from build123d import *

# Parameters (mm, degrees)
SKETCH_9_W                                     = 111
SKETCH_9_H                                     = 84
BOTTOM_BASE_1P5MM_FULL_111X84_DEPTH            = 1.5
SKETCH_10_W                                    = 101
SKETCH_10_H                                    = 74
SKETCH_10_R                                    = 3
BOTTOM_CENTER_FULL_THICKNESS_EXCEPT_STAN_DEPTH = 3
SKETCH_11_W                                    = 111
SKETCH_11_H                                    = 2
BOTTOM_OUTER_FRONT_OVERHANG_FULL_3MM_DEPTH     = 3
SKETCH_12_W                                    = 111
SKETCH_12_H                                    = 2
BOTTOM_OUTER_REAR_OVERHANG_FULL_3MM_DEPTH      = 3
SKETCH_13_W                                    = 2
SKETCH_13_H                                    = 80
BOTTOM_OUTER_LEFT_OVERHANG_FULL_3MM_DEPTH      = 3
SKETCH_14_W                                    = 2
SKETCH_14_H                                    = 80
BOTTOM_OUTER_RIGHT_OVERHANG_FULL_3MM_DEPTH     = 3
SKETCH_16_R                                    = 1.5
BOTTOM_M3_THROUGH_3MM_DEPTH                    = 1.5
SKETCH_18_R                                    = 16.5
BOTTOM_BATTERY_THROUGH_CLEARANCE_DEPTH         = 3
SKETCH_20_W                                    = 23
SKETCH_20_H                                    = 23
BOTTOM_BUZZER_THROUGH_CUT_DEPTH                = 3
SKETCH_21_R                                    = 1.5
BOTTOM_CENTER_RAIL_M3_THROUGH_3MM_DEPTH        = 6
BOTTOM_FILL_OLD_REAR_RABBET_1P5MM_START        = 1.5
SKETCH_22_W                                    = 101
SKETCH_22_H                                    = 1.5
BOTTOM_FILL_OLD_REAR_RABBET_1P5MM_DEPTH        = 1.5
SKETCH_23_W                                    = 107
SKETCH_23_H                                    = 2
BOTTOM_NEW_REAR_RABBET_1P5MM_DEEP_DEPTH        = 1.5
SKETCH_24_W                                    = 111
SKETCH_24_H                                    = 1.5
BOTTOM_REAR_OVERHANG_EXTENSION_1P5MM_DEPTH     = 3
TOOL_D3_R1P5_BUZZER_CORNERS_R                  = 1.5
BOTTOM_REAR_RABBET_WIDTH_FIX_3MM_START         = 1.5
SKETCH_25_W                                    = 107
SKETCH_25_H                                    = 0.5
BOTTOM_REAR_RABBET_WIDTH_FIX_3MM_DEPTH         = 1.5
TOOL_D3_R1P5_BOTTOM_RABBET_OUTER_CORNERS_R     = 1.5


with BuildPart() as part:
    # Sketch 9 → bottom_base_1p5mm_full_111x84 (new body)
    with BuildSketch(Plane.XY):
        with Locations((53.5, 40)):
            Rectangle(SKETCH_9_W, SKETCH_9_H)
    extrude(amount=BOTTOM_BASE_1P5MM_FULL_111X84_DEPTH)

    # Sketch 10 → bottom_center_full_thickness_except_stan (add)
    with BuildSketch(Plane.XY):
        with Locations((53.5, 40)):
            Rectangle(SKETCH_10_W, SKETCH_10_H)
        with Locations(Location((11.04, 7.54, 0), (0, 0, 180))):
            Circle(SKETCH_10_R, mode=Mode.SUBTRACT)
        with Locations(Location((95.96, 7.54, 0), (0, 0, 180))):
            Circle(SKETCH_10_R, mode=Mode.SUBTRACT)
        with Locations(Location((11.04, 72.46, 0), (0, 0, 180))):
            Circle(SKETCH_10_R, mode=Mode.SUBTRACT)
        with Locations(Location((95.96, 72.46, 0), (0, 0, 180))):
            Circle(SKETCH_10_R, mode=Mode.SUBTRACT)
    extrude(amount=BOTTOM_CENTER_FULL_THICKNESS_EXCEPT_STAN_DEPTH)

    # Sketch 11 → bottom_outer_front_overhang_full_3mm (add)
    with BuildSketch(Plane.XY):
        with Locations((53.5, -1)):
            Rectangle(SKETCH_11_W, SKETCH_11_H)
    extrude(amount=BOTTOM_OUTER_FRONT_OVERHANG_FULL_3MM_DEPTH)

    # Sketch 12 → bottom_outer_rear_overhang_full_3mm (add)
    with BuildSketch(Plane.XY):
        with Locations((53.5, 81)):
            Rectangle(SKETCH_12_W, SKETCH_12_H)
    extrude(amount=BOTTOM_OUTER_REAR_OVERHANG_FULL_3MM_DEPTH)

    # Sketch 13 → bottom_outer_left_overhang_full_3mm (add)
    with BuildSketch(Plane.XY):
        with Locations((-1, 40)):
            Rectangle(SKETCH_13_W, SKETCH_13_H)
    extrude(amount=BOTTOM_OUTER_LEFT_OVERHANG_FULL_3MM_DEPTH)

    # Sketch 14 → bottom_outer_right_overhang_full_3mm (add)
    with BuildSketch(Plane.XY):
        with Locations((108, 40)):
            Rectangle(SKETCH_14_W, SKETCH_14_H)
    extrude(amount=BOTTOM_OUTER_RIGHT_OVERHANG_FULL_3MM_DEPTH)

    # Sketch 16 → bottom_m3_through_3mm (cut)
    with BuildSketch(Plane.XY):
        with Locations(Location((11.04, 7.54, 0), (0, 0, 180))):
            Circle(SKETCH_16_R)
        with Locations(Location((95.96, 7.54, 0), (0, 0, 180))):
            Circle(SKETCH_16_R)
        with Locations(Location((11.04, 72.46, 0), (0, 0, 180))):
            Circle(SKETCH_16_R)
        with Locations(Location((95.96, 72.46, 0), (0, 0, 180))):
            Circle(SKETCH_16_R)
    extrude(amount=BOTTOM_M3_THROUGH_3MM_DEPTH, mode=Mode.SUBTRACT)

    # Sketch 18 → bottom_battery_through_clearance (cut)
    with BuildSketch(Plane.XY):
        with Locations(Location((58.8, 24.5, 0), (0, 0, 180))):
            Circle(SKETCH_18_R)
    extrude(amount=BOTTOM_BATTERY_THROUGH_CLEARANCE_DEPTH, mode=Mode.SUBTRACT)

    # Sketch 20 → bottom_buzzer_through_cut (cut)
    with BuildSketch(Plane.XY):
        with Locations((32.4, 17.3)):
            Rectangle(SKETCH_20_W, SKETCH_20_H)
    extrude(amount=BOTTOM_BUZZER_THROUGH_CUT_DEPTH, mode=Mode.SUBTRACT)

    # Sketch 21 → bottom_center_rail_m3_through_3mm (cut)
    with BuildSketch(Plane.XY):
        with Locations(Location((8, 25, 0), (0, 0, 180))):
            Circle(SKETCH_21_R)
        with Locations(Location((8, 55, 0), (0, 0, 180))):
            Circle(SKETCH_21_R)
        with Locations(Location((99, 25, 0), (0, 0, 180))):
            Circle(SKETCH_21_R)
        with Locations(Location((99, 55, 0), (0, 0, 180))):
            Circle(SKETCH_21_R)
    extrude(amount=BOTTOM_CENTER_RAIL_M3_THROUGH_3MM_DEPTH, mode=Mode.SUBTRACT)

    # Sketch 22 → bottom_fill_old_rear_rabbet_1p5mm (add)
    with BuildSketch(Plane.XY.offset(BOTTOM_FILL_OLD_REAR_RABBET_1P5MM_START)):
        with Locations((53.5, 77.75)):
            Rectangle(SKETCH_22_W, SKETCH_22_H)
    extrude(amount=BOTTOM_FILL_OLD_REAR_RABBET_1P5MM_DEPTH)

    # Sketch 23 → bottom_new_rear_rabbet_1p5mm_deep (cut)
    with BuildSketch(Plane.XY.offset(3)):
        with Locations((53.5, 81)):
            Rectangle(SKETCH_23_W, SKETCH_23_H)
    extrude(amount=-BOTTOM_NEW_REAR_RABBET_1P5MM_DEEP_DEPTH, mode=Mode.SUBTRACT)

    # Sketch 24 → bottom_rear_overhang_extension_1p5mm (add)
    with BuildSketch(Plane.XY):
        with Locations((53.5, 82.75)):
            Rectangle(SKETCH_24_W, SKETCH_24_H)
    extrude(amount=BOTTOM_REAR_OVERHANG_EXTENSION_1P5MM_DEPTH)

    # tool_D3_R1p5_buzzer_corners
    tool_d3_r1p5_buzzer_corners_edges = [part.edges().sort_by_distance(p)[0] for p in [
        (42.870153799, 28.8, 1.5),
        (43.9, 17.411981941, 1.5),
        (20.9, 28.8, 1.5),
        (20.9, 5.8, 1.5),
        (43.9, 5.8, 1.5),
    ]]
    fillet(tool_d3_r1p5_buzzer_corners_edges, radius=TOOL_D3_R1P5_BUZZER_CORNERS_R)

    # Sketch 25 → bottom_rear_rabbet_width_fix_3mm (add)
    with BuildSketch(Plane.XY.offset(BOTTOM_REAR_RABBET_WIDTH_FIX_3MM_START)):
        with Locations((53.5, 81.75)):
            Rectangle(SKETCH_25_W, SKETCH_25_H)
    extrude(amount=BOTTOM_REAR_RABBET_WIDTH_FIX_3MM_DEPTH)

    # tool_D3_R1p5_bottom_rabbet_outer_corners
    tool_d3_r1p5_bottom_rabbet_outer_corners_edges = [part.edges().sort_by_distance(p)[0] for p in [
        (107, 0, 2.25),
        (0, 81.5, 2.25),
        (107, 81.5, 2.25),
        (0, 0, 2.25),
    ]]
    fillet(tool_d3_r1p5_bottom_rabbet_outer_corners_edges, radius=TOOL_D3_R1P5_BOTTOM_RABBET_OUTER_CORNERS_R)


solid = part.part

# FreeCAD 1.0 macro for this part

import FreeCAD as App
import Part
import Sketcher
from FreeCAD import Vector
Q = App.Units.Quantity


def edges_at(feature, points):
    """Names of the edges that pass closest to the given points."""
    edges = feature.Shape.Edges
    near = lambda p: min(range(len(edges)), key=lambda i: edges[i].distToShape(Part.Vertex(*p))[0])
    return sorted({f"Edge{near(p) + 1}" for p in points})


def add_polygon(sketch, points):
    """Adds a closed chain of lines whose ends are joined by coincident constraints."""
    first, n = sketch.GeometryCount, len(points)
    for a, b in zip(points, points[1:] + points[:1]):
        sketch.addGeometry(Part.LineSegment(App.Vector(*a, 0), App.Vector(*b, 0)), False)
    for i in range(n):
        sketch.addConstraint(Sketcher.Constraint("Coincident", first + i, 2, first + (i + 1) % n, 1))

doc = App.newDocument("Part")
params = doc.addObject("Spreadsheet::Sheet", "Params")
for row, (alias, value) in enumerate([
    ("sketch1_width", "111 mm"),
    ("sketch1_height", "84 mm"),
    ("pad1_length", "1.5 mm"),
    ("sketch2_diameter", "6 mm"),
    ("sketch2_width", "101 mm"),
    ("sketch2_height", "74 mm"),
    ("pad2_length", "3 mm"),
    ("sketch3_width", "111 mm"),
    ("sketch3_height", "2 mm"),
    ("pad3_length", "3 mm"),
    ("sketch4_width", "111 mm"),
    ("sketch4_height", "2 mm"),
    ("pad4_length", "3 mm"),
    ("sketch5_width", "2 mm"),
    ("sketch5_height", "80 mm"),
    ("pad5_length", "3 mm"),
    ("sketch6_width", "2 mm"),
    ("sketch6_height", "80 mm"),
    ("pad6_length", "3 mm"),
    ("sketch7_diameter", "3 mm"),
    ("pocket1_length", "1.5 mm"),
    ("sketch8_diameter", "33 mm"),
    ("pocket2_length", "3 mm"),
    ("sketch9_width", "23 mm"),
    ("pocket3_length", "3 mm"),
    ("sketch10_diameter", "3 mm"),
    ("pocket4_length", "6 mm"),
    ("sketch11_width", "101 mm"),
    ("sketch11_height", "1.5 mm"),
    ("pad7_length", "1.5 mm"),
    ("sketch12_width", "107 mm"),
    ("sketch12_height", "2 mm"),
    ("pocket5_length", "1.5 mm"),
    ("sketch13_width", "111 mm"),
    ("sketch13_height", "1.5 mm"),
    ("pad8_length", "3 mm"),
    ("fillet_radius", "1.5 mm"),
    ("sketch14_width", "107 mm"),
    ("sketch14_height", "0.5 mm"),
    ("pad9_length", "1.5 mm"),
    ("fillet2_radius", "1.5 mm"),
], start=1):
    params.set(f"A{row}", alias)
    params.set(f"B{row}", "=" + value)
    params.setAlias(f"B{row}", alias)

body = doc.addObject("PartDesign::Body", "Body")

sketch1 = body.newObject("Sketcher::SketchObject", "Sketch")
sketch1.AttachmentSupport = (doc.getObject("XY_Plane"), [""])
sketch1.MapMode = "FlatFace"
add_polygon(sketch1, [(-2, 82), (-2, -2), (109, -2), (109, 82)])
sketch1.addConstraint(Sketcher.Constraint("Vertical", 0))
sketch1.addConstraint(Sketcher.Constraint("Horizontal", 1))
sketch1.addConstraint(Sketcher.Constraint("Vertical", 2))
sketch1.addConstraint(Sketcher.Constraint("Horizontal", 3))
sketch1.addConstraint(Sketcher.Constraint("DistanceX", 1, 1, 1, 2, Q("111 mm")))
sketch1.addConstraint(Sketcher.Constraint("DistanceY", 0, 2, 0, 1, Q("84 mm")))
sketch1.addConstraint(Sketcher.Constraint("DistanceX", 0, 2, -1, 1, Q("2 mm")))
sketch1.addConstraint(Sketcher.Constraint("DistanceY", 0, 2, -1, 1, Q("2 mm")))
sketch1.setExpression("Constraints[8]", "Params.sketch1_width")
sketch1.setExpression("Constraints[9]", "Params.sketch1_height")
pad1 = body.newObject("PartDesign::Pad", "Pad")
pad1.Profile = sketch1
pad1.setExpression("Length", "Params.pad1_length")

sketch2 = body.newObject("Sketcher::SketchObject", "Sketch001")
sketch2.AttachmentSupport = (doc.getObject("XY_Plane"), [""])
sketch2.MapMode = "FlatFace"
add_polygon(sketch2, [(3, 77), (3, 3), (104, 3), (104, 77)])
sketch2.addGeometry(Part.Circle(Vector(11, 7.5, 0), Vector(0, 0, 1), 3), False)
sketch2.addGeometry(Part.Circle(Vector(96, 7.5, 0), Vector(0, 0, 1), 3), False)
sketch2.addGeometry(Part.Circle(Vector(11, 72.5, 0), Vector(0, 0, 1), 3), False)
sketch2.addGeometry(Part.Circle(Vector(96, 72.5, 0), Vector(0, 0, 1), 3), False)
sketch2.addConstraint(Sketcher.Constraint("Vertical", 0))
sketch2.addConstraint(Sketcher.Constraint("Horizontal", 1))
sketch2.addConstraint(Sketcher.Constraint("Vertical", 2))
sketch2.addConstraint(Sketcher.Constraint("Horizontal", 3))
sketch2.addConstraint(Sketcher.Constraint("Equal", 4, 5))
sketch2.addConstraint(Sketcher.Constraint("Equal", 5, 6))
sketch2.addConstraint(Sketcher.Constraint("Equal", 6, 7))
sketch2.addConstraint(Sketcher.Constraint("Horizontal", 4, 3, 5, 3))
sketch2.addConstraint(Sketcher.Constraint("Horizontal", 6, 3, 7, 3))
sketch2.addConstraint(Sketcher.Constraint("Vertical", 4, 3, 6, 3))
sketch2.addConstraint(Sketcher.Constraint("Vertical", 5, 3, 7, 3))
sketch2.addConstraint(Sketcher.Constraint("Diameter", 4, Q("6 mm")))
sketch2.addConstraint(Sketcher.Constraint("DistanceX", 1, 1, 1, 2, Q("101 mm")))
sketch2.addConstraint(Sketcher.Constraint("DistanceY", 0, 2, 0, 1, Q("74 mm")))
sketch2.addConstraint(Sketcher.Constraint("DistanceX", -1, 1, 0, 2, Q("3 mm")))
sketch2.addConstraint(Sketcher.Constraint("DistanceY", -1, 1, 0, 2, Q("3 mm")))
sketch2.addConstraint(Sketcher.Constraint("DistanceX", -1, 1, 4, 3, Q("11.04 mm")))
sketch2.addConstraint(Sketcher.Constraint("DistanceY", -1, 1, 4, 3, Q("7.54 mm")))
sketch2.addConstraint(Sketcher.Constraint("DistanceX", -1, 1, 5, 3, Q("95.96 mm")))
sketch2.addConstraint(Sketcher.Constraint("DistanceY", -1, 1, 6, 3, Q("72.46 mm")))
sketch2.setExpression("Constraints[15]", "Params.sketch2_diameter")
sketch2.setExpression("Constraints[16]", "Params.sketch2_width")
sketch2.setExpression("Constraints[17]", "Params.sketch2_height")
pad2 = body.newObject("PartDesign::Pad", "Pad001")
pad2.Profile = sketch2
pad2.setExpression("Length", "Params.pad2_length")

sketch3 = body.newObject("Sketcher::SketchObject", "Sketch002")
sketch3.AttachmentSupport = (doc.getObject("XY_Plane"), [""])
sketch3.MapMode = "FlatFace"
add_polygon(sketch3, [(-2, 0), (-2, -2), (109, -2), (109, 0)])
sketch3.addConstraint(Sketcher.Constraint("Vertical", 0))
sketch3.addConstraint(Sketcher.Constraint("Horizontal", 1))
sketch3.addConstraint(Sketcher.Constraint("Vertical", 2))
sketch3.addConstraint(Sketcher.Constraint("Horizontal", 3))
sketch3.addConstraint(Sketcher.Constraint("PointOnObject", 2, 2, -1))
sketch3.addConstraint(Sketcher.Constraint("DistanceX", 1, 1, 1, 2, Q("111 mm")))
sketch3.addConstraint(Sketcher.Constraint("DistanceY", 0, 2, 0, 1, Q("2 mm")))
sketch3.addConstraint(Sketcher.Constraint("DistanceX", 0, 2, -1, 1, Q("2 mm")))
sketch3.setExpression("Constraints[9]", "Params.sketch3_width")
sketch3.setExpression("Constraints[10]", "Params.sketch3_height")
pad3 = body.newObject("PartDesign::Pad", "Pad002")
pad3.Profile = sketch3
pad3.setExpression("Length", "Params.pad3_length")

sketch4 = body.newObject("Sketcher::SketchObject", "Sketch003")
sketch4.AttachmentSupport = (doc.getObject("XY_Plane"), [""])
sketch4.MapMode = "FlatFace"
add_polygon(sketch4, [(-2, 82), (-2, 80), (109, 80), (109, 82)])
sketch4.addConstraint(Sketcher.Constraint("Vertical", 0))
sketch4.addConstraint(Sketcher.Constraint("Horizontal", 1))
sketch4.addConstraint(Sketcher.Constraint("Vertical", 2))
sketch4.addConstraint(Sketcher.Constraint("Horizontal", 3))
sketch4.addConstraint(Sketcher.Constraint("DistanceX", 1, 1, 1, 2, Q("111 mm")))
sketch4.addConstraint(Sketcher.Constraint("DistanceY", 0, 2, 0, 1, Q("2 mm")))
sketch4.addConstraint(Sketcher.Constraint("DistanceX", 0, 2, -1, 1, Q("2 mm")))
sketch4.addConstraint(Sketcher.Constraint("DistanceY", -1, 1, 0, 2, Q("80 mm")))
sketch4.setExpression("Constraints[8]", "Params.sketch4_width")
sketch4.setExpression("Constraints[9]", "Params.sketch4_height")
pad4 = body.newObject("PartDesign::Pad", "Pad003")
pad4.Profile = sketch4
pad4.setExpression("Length", "Params.pad4_length")

sketch5 = body.newObject("Sketcher::SketchObject", "Sketch004")
sketch5.AttachmentSupport = (doc.getObject("XY_Plane"), [""])
sketch5.MapMode = "FlatFace"
add_polygon(sketch5, [(-2, 80), (-2, 0), (0, 0), (0, 80)])
sketch5.addConstraint(Sketcher.Constraint("Vertical", 0))
sketch5.addConstraint(Sketcher.Constraint("Horizontal", 1))
sketch5.addConstraint(Sketcher.Constraint("Vertical", 2))
sketch5.addConstraint(Sketcher.Constraint("Horizontal", 3))
sketch5.addConstraint(Sketcher.Constraint("Coincident", 1, 2, -1, 1))
sketch5.addConstraint(Sketcher.Constraint("DistanceX", 1, 1, 1, 2, Q("2 mm")))
sketch5.addConstraint(Sketcher.Constraint("DistanceY", 0, 2, 0, 1, Q("80 mm")))
sketch5.setExpression("Constraints[9]", "Params.sketch5_width")
sketch5.setExpression("Constraints[10]", "Params.sketch5_height")
pad5 = body.newObject("PartDesign::Pad", "Pad004")
pad5.Profile = sketch5
pad5.setExpression("Length", "Params.pad5_length")

sketch6 = body.newObject("Sketcher::SketchObject", "Sketch005")
sketch6.AttachmentSupport = (doc.getObject("XY_Plane"), [""])
sketch6.MapMode = "FlatFace"
add_polygon(sketch6, [(107, 80), (107, 0), (109, 0), (109, 80)])
sketch6.addConstraint(Sketcher.Constraint("Vertical", 0))
sketch6.addConstraint(Sketcher.Constraint("Horizontal", 1))
sketch6.addConstraint(Sketcher.Constraint("Vertical", 2))
sketch6.addConstraint(Sketcher.Constraint("Horizontal", 3))
sketch6.addConstraint(Sketcher.Constraint("PointOnObject", 0, 2, -1))
sketch6.addConstraint(Sketcher.Constraint("DistanceX", 1, 1, 1, 2, Q("2 mm")))
sketch6.addConstraint(Sketcher.Constraint("DistanceY", 0, 2, 0, 1, Q("80 mm")))
sketch6.addConstraint(Sketcher.Constraint("DistanceX", -1, 1, 0, 2, Q("107 mm")))
sketch6.setExpression("Constraints[9]", "Params.sketch6_width")
sketch6.setExpression("Constraints[10]", "Params.sketch6_height")
pad6 = body.newObject("PartDesign::Pad", "Pad005")
pad6.Profile = sketch6
pad6.setExpression("Length", "Params.pad6_length")

sketch7 = body.newObject("Sketcher::SketchObject", "Sketch006")
sketch7.AttachmentSupport = (doc.getObject("XY_Plane"), [""])
sketch7.MapMode = "FlatFace"
sketch7.addGeometry(Part.Circle(Vector(11, 7.5, 0), Vector(0, 0, 1), 1.5), False)
sketch7.addGeometry(Part.Circle(Vector(96, 7.5, 0), Vector(0, 0, 1), 1.5), False)
sketch7.addGeometry(Part.Circle(Vector(11, 72.5, 0), Vector(0, 0, 1), 1.5), False)
sketch7.addGeometry(Part.Circle(Vector(96, 72.5, 0), Vector(0, 0, 1), 1.5), False)
sketch7.addConstraint(Sketcher.Constraint("Equal", 0, 1))
sketch7.addConstraint(Sketcher.Constraint("Equal", 1, 2))
sketch7.addConstraint(Sketcher.Constraint("Equal", 2, 3))
sketch7.addConstraint(Sketcher.Constraint("Horizontal", 0, 3, 1, 3))
sketch7.addConstraint(Sketcher.Constraint("Horizontal", 2, 3, 3, 3))
sketch7.addConstraint(Sketcher.Constraint("Vertical", 0, 3, 2, 3))
sketch7.addConstraint(Sketcher.Constraint("Vertical", 1, 3, 3, 3))
sketch7.addConstraint(Sketcher.Constraint("Diameter", 0, Q("3 mm")))
sketch7.addConstraint(Sketcher.Constraint("DistanceX", -1, 1, 0, 3, Q("11.04 mm")))
sketch7.addConstraint(Sketcher.Constraint("DistanceY", -1, 1, 0, 3, Q("7.54 mm")))
sketch7.addConstraint(Sketcher.Constraint("DistanceX", -1, 1, 1, 3, Q("95.96 mm")))
sketch7.addConstraint(Sketcher.Constraint("DistanceY", -1, 1, 2, 3, Q("72.46 mm")))
sketch7.setExpression("Constraints[7]", "Params.sketch7_diameter")
pocket1 = body.newObject("PartDesign::Pocket", "Pocket")
pocket1.Profile = sketch7
pocket1.setExpression("Length", "Params.pocket1_length")
pocket1.Reversed = True

sketch8 = body.newObject("Sketcher::SketchObject", "Sketch007")
sketch8.AttachmentSupport = (doc.getObject("XY_Plane"), [""])
sketch8.MapMode = "FlatFace"
sketch8.addGeometry(Part.Circle(Vector(59, 24, 0), Vector(0, 0, 1), 16), False)
sketch8.addConstraint(Sketcher.Constraint("Diameter", 0, Q("33 mm")))
sketch8.addConstraint(Sketcher.Constraint("DistanceX", -1, 1, 0, 3, Q("58.8 mm")))
sketch8.addConstraint(Sketcher.Constraint("DistanceY", -1, 1, 0, 3, Q("24.5 mm")))
sketch8.setExpression("Constraints[0]", "Params.sketch8_diameter")
pocket2 = body.newObject("PartDesign::Pocket", "Pocket001")
pocket2.Profile = sketch8
pocket2.setExpression("Length", "Params.pocket2_length")
pocket2.Reversed = True

sketch9 = body.newObject("Sketcher::SketchObject", "Sketch008")
sketch9.AttachmentSupport = (doc.getObject("XY_Plane"), [""])
sketch9.MapMode = "FlatFace"
add_polygon(sketch9, [(21, 29), (21, 6), (44, 6), (44, 29)])
sketch9.addConstraint(Sketcher.Constraint("Vertical", 0))
sketch9.addConstraint(Sketcher.Constraint("Horizontal", 1))
sketch9.addConstraint(Sketcher.Constraint("Vertical", 2))
sketch9.addConstraint(Sketcher.Constraint("Horizontal", 3))
sketch9.addConstraint(Sketcher.Constraint("Equal", 3, 0))
sketch9.addConstraint(Sketcher.Constraint("DistanceX", 1, 1, 1, 2, Q("23 mm")))
sketch9.addConstraint(Sketcher.Constraint("DistanceX", -1, 1, 0, 2, Q("20.9 mm")))
sketch9.addConstraint(Sketcher.Constraint("DistanceY", -1, 1, 0, 2, Q("5.8 mm")))
sketch9.setExpression("Constraints[9]", "Params.sketch9_width")
pocket3 = body.newObject("PartDesign::Pocket", "Pocket002")
pocket3.Profile = sketch9
pocket3.setExpression("Length", "Params.pocket3_length")
pocket3.Reversed = True

sketch10 = body.newObject("Sketcher::SketchObject", "Sketch009")
sketch10.AttachmentSupport = (doc.getObject("XY_Plane"), [""])
sketch10.MapMode = "FlatFace"
sketch10.addGeometry(Part.Circle(Vector(8, 25, 0), Vector(0, 0, 1), 1.5), False)
sketch10.addGeometry(Part.Circle(Vector(8, 55, 0), Vector(0, 0, 1), 1.5), False)
sketch10.addGeometry(Part.Circle(Vector(99, 25, 0), Vector(0, 0, 1), 1.5), False)
sketch10.addGeometry(Part.Circle(Vector(99, 55, 0), Vector(0, 0, 1), 1.5), False)
sketch10.addConstraint(Sketcher.Constraint("Equal", 0, 1))
sketch10.addConstraint(Sketcher.Constraint("Equal", 1, 2))
sketch10.addConstraint(Sketcher.Constraint("Equal", 2, 3))
sketch10.addConstraint(Sketcher.Constraint("Horizontal", 0, 3, 2, 3))
sketch10.addConstraint(Sketcher.Constraint("Horizontal", 1, 3, 3, 3))
sketch10.addConstraint(Sketcher.Constraint("Vertical", 0, 3, 1, 3))
sketch10.addConstraint(Sketcher.Constraint("Vertical", 2, 3, 3, 3))
sketch10.addConstraint(Sketcher.Constraint("Diameter", 0, Q("3 mm")))
sketch10.addConstraint(Sketcher.Constraint("DistanceX", -1, 1, 0, 3, Q("8 mm")))
sketch10.addConstraint(Sketcher.Constraint("DistanceY", -1, 1, 0, 3, Q("25 mm")))
sketch10.addConstraint(Sketcher.Constraint("DistanceY", -1, 1, 1, 3, Q("55 mm")))
sketch10.addConstraint(Sketcher.Constraint("DistanceX", -1, 1, 2, 3, Q("99 mm")))
sketch10.setExpression("Constraints[7]", "Params.sketch10_diameter")
pocket4 = body.newObject("PartDesign::Pocket", "Pocket003")
pocket4.Profile = sketch10
pocket4.setExpression("Length", "Params.pocket4_length")
pocket4.Reversed = True

sketch11 = body.newObject("Sketcher::SketchObject", "Sketch010")
sketch11.AttachmentSupport = (doc.getObject("XY_Plane"), [""])
sketch11.MapMode = "FlatFace"
sketch11.AttachmentOffset = App.Placement(Vector(0, 0, 1.5), App.Rotation())
add_polygon(sketch11, [(3, 78.5), (3, 77), (104, 77), (104, 78.5)])
sketch11.addConstraint(Sketcher.Constraint("Vertical", 0))
sketch11.addConstraint(Sketcher.Constraint("Horizontal", 1))
sketch11.addConstraint(Sketcher.Constraint("Vertical", 2))
sketch11.addConstraint(Sketcher.Constraint("Horizontal", 3))
sketch11.addConstraint(Sketcher.Constraint("DistanceX", 1, 1, 1, 2, Q("101 mm")))
sketch11.addConstraint(Sketcher.Constraint("DistanceY", 0, 2, 0, 1, Q("1.5 mm")))
sketch11.addConstraint(Sketcher.Constraint("DistanceX", -1, 1, 0, 2, Q("3 mm")))
sketch11.addConstraint(Sketcher.Constraint("DistanceY", -1, 1, 0, 2, Q("77 mm")))
sketch11.setExpression("Constraints[8]", "Params.sketch11_width")
sketch11.setExpression("Constraints[9]", "Params.sketch11_height")
pad7 = body.newObject("PartDesign::Pad", "Pad006")
pad7.Profile = sketch11
pad7.setExpression("Length", "Params.pad7_length")

sketch12 = body.newObject("Sketcher::SketchObject", "Sketch011")
sketch12.AttachmentSupport = (doc.getObject("XY_Plane"), [""])
sketch12.MapMode = "FlatFace"
sketch12.AttachmentOffset = App.Placement(Vector(0, 0, 3), App.Rotation())
add_polygon(sketch12, [(0, 82), (0, 80), (107, 80), (107, 82)])
sketch12.addConstraint(Sketcher.Constraint("Vertical", 0))
sketch12.addConstraint(Sketcher.Constraint("Horizontal", 1))
sketch12.addConstraint(Sketcher.Constraint("Vertical", 2))
sketch12.addConstraint(Sketcher.Constraint("Horizontal", 3))
sketch12.addConstraint(Sketcher.Constraint("PointOnObject", 0, 2, -2))
sketch12.addConstraint(Sketcher.Constraint("DistanceX", 1, 1, 1, 2, Q("107 mm")))
sketch12.addConstraint(Sketcher.Constraint("DistanceY", 0, 2, 0, 1, Q("2 mm")))
sketch12.addConstraint(Sketcher.Constraint("DistanceY", -1, 1, 0, 2, Q("80 mm")))
sketch12.setExpression("Constraints[9]", "Params.sketch12_width")
sketch12.setExpression("Constraints[10]", "Params.sketch12_height")
pocket5 = body.newObject("PartDesign::Pocket", "Pocket004")
pocket5.Profile = sketch12
pocket5.setExpression("Length", "Params.pocket5_length")

sketch13 = body.newObject("Sketcher::SketchObject", "Sketch012")
sketch13.AttachmentSupport = (doc.getObject("XY_Plane"), [""])
sketch13.MapMode = "FlatFace"
add_polygon(sketch13, [(-2, 83.5), (-2, 82), (109, 82), (109, 83.5)])
sketch13.addConstraint(Sketcher.Constraint("Vertical", 0))
sketch13.addConstraint(Sketcher.Constraint("Horizontal", 1))
sketch13.addConstraint(Sketcher.Constraint("Vertical", 2))
sketch13.addConstraint(Sketcher.Constraint("Horizontal", 3))
sketch13.addConstraint(Sketcher.Constraint("DistanceX", 1, 1, 1, 2, Q("111 mm")))
sketch13.addConstraint(Sketcher.Constraint("DistanceY", 0, 2, 0, 1, Q("1.5 mm")))
sketch13.addConstraint(Sketcher.Constraint("DistanceX", 0, 2, -1, 1, Q("2 mm")))
sketch13.addConstraint(Sketcher.Constraint("DistanceY", -1, 1, 0, 2, Q("82 mm")))
sketch13.setExpression("Constraints[8]", "Params.sketch13_width")
sketch13.setExpression("Constraints[9]", "Params.sketch13_height")
pad8 = body.newObject("PartDesign::Pad", "Pad007")
pad8.Profile = sketch13
pad8.setExpression("Length", "Params.pad8_length")
doc.recompute()

fillet = body.newObject("PartDesign::Fillet", "Fillet")
fillet.Base = (pad8, edges_at(pad8, [
    (42.87, 28.8, 1.5),
    (43.9, 17.412, 1.5),
    (20.9, 28.8, 1.5),
    (20.9, 5.8, 1.5),
    (43.9, 5.8, 1.5),
]))
fillet.setExpression("Radius", "Params.fillet_radius")

sketch14 = body.newObject("Sketcher::SketchObject", "Sketch013")
sketch14.AttachmentSupport = (doc.getObject("XY_Plane"), [""])
sketch14.MapMode = "FlatFace"
sketch14.AttachmentOffset = App.Placement(Vector(0, 0, 1.5), App.Rotation())
add_polygon(sketch14, [(0, 82), (0, 81.5), (107, 81.5), (107, 82)])
sketch14.addConstraint(Sketcher.Constraint("Vertical", 0))
sketch14.addConstraint(Sketcher.Constraint("Horizontal", 1))
sketch14.addConstraint(Sketcher.Constraint("Vertical", 2))
sketch14.addConstraint(Sketcher.Constraint("Horizontal", 3))
sketch14.addConstraint(Sketcher.Constraint("PointOnObject", 0, 2, -2))
sketch14.addConstraint(Sketcher.Constraint("DistanceX", 1, 1, 1, 2, Q("107 mm")))
sketch14.addConstraint(Sketcher.Constraint("DistanceY", 0, 2, 0, 1, Q("0.5 mm")))
sketch14.addConstraint(Sketcher.Constraint("DistanceY", -1, 1, 2, 2, Q("82 mm")))
sketch14.setExpression("Constraints[9]", "Params.sketch14_width")
sketch14.setExpression("Constraints[10]", "Params.sketch14_height")
pad9 = body.newObject("PartDesign::Pad", "Pad008")
pad9.Profile = sketch14
pad9.setExpression("Length", "Params.pad9_length")
doc.recompute()

fillet2 = body.newObject("PartDesign::Fillet", "Fillet001")
fillet2.Base = (pad9, edges_at(pad9, [
    (107, 0, 2.25),
    (0, 81.5, 2.25),
    (107, 81.5, 2.25),
    (0, 0, 2.25),
]))
fillet2.setExpression("Radius", "Params.fillet2_radius")

doc.recompute()
